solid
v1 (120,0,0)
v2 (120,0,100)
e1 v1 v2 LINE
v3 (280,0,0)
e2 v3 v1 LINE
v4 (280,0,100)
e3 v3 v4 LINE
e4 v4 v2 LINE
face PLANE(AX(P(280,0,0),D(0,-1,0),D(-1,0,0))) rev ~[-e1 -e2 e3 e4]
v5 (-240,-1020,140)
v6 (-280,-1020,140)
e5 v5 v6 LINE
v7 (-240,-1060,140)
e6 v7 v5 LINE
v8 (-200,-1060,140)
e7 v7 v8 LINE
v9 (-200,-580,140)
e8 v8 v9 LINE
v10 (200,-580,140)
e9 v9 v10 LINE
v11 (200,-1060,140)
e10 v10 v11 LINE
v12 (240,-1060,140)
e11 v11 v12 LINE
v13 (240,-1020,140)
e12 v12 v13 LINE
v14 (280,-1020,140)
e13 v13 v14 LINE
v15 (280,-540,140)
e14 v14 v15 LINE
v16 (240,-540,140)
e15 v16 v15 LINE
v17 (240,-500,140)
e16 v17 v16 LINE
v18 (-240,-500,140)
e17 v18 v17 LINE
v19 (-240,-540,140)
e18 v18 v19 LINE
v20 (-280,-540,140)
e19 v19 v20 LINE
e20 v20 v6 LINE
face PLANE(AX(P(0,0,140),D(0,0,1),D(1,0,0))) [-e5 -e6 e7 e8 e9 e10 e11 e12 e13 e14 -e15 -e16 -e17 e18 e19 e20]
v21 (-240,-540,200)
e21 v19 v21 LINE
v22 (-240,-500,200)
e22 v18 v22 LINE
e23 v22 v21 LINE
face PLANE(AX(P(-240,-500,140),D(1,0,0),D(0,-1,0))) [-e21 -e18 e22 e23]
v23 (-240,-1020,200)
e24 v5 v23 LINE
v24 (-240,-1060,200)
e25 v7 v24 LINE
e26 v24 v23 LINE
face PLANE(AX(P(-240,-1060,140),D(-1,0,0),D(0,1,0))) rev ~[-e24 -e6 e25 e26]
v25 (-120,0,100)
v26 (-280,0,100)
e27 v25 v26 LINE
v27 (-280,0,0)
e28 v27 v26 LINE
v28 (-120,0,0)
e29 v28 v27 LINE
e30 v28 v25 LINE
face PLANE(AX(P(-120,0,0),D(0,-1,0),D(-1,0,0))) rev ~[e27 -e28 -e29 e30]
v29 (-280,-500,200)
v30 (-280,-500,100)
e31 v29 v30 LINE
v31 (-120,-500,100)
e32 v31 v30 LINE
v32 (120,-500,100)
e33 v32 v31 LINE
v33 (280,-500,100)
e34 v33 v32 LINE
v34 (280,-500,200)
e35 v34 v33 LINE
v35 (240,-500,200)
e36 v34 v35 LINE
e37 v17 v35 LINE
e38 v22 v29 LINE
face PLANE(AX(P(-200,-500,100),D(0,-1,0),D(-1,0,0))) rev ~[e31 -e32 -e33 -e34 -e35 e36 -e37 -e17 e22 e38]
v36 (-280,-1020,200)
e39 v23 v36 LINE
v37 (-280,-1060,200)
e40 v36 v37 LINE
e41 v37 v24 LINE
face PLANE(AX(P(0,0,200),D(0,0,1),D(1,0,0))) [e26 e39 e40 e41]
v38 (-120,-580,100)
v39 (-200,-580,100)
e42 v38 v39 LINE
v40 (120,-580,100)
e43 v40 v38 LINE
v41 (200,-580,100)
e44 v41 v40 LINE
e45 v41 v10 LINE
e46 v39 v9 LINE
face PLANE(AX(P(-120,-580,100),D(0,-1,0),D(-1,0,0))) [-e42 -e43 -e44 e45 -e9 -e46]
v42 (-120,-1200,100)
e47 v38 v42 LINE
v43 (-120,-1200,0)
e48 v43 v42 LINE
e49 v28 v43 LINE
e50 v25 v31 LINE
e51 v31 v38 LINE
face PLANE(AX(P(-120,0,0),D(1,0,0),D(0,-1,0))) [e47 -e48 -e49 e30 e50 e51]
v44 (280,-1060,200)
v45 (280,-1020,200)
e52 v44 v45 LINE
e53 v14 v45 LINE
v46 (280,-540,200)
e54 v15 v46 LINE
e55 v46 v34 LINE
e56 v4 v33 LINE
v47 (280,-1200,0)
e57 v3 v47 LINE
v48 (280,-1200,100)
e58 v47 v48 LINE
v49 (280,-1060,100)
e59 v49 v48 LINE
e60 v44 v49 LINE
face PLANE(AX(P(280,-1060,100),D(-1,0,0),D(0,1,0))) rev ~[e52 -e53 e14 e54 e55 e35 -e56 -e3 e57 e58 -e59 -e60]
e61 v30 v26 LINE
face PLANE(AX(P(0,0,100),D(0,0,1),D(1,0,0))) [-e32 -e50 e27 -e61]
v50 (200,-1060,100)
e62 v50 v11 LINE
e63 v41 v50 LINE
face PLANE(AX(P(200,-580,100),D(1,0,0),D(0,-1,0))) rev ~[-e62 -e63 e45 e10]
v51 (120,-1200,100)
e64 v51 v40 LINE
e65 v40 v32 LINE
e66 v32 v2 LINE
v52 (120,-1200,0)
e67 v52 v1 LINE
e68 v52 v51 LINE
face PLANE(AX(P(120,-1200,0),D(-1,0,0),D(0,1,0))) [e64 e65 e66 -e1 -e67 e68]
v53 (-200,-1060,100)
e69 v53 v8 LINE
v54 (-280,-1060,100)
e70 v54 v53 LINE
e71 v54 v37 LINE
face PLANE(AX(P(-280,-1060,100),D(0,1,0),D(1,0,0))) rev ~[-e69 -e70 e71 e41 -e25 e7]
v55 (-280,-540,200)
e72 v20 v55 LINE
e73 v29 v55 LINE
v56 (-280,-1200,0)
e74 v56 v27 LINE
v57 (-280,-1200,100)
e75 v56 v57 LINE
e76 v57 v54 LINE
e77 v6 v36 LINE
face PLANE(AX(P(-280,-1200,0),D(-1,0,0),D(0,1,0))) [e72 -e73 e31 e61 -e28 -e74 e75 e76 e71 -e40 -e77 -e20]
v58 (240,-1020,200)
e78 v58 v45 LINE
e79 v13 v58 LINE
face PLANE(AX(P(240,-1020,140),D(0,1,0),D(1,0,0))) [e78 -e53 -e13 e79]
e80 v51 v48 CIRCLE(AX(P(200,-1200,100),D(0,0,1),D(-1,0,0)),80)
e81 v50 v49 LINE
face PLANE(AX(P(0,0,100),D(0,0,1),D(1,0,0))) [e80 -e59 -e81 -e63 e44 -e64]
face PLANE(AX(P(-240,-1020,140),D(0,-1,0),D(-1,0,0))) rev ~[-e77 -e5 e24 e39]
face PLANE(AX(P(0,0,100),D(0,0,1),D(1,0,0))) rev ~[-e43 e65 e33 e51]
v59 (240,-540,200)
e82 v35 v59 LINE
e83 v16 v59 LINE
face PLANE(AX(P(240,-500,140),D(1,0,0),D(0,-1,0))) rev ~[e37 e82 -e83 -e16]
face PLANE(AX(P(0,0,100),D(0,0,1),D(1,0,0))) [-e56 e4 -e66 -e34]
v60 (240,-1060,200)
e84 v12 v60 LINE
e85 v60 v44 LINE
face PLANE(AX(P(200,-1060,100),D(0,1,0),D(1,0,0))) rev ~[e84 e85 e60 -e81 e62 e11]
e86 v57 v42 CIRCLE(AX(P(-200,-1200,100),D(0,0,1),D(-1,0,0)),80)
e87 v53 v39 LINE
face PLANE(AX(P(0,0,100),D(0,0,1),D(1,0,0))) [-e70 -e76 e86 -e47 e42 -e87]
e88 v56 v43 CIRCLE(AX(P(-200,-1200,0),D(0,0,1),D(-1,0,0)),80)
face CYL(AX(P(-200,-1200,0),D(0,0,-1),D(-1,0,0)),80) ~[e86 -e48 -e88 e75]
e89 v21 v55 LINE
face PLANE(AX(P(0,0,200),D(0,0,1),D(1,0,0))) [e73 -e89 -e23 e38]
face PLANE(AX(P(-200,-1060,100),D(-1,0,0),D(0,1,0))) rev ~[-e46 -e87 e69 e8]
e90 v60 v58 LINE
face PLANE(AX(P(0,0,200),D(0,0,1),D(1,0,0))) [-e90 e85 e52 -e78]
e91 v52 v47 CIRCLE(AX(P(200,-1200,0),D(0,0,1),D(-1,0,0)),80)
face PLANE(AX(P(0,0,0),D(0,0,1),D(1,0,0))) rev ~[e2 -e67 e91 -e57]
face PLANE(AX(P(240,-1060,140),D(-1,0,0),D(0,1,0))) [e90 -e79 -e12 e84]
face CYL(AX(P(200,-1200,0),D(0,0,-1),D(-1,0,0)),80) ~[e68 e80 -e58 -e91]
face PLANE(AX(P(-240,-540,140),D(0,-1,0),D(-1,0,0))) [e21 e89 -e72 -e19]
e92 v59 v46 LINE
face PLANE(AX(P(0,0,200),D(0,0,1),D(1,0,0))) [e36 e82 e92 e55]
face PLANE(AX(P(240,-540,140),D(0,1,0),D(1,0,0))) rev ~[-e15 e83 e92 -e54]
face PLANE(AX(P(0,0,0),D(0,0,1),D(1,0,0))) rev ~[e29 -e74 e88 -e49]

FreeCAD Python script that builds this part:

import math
import FreeCAD as App
import Part
import Sketcher

doc = App.newDocument("Part")
body = doc.addObject("PartDesign::Body", "Body")
body.AllowCompound = True

# Sketch on XY plane
sketch1 = doc.addObject("Sketcher::SketchObject", "Sketch")
body.addObject(sketch1)
sketch1.AttachmentSupport = (doc.XY_Plane, [""])
sketch1.MapMode = "FlatFace"
sketch1.addGeometry(Part.LineSegment(App.Vector(-120, -1200, 0), App.Vector(-120, 0, 0)), False)
sketch1.addGeometry(Part.LineSegment(App.Vector(-120, 0, 0), App.Vector(-280, 0, 0)), False)
sketch1.addGeometry(Part.LineSegment(App.Vector(-280, 0, 0), App.Vector(-280, -1200, 0)), False)
sketch1.addGeometry(Part.ArcOfCircle(Part.Circle(App.Vector(-200, -1200, 0), App.Vector(0, 0, 1), 80), math.radians(180), math.radians(360)), False)
sketch1.addGeometry(Part.LineSegment(App.Vector(280, -1200, 0), App.Vector(280, 0, 0)), False)
sketch1.addGeometry(Part.LineSegment(App.Vector(280, 0, 0), App.Vector(120, 0, 0)), False)
sketch1.addGeometry(Part.LineSegment(App.Vector(120, 0, 0), App.Vector(120, -1200, 0)), False)
sketch1.addGeometry(Part.ArcOfCircle(Part.Circle(App.Vector(200, -1200, 0), App.Vector(0, 0, 1), 80), math.radians(180), math.radians(360)), False)
sketch1.addConstraint(Sketcher.Constraint("Coincident", 0, 2, 1, 1))
sketch1.addConstraint(Sketcher.Constraint("Coincident", 1, 2, 2, 1))
sketch1.addConstraint(Sketcher.Constraint("Tangent", 2, 2, 3, 1))
sketch1.addConstraint(Sketcher.Constraint("Tangent", 3, 2, 0, 1))
sketch1.addConstraint(Sketcher.Constraint("Coincident", 4, 2, 5, 1))
sketch1.addConstraint(Sketcher.Constraint("Coincident", 5, 2, 6, 1))
sketch1.addConstraint(Sketcher.Constraint("Tangent", 6, 2, 7, 1))
sketch1.addConstraint(Sketcher.Constraint("Tangent", 7, 2, 4, 1))
sketch1.addConstraint(Sketcher.Constraint("Vertical", 0))
sketch1.addConstraint(Sketcher.Constraint("Horizontal", 1))
sketch1.addConstraint(Sketcher.Constraint("Vertical", 2))
sketch1.addConstraint(Sketcher.Constraint("Vertical", 4))
sketch1.addConstraint(Sketcher.Constraint("Horizontal", 5))
sketch1.addConstraint(Sketcher.Constraint("Vertical", 6))
sketch1.addConstraint(Sketcher.Constraint("Equal", 3, 7))
sketch1.addConstraint(Sketcher.Constraint("Symmetric", 1, 2, 4, 2, -1, 1))
sketch1.addConstraint(Sketcher.Constraint("PointOnObject", 0, 2, -1))
sketch1.addConstraint(Sketcher.Constraint("Horizontal", 3, 3, 7, 3))
sketch1.addConstraint(Sketcher.Constraint("Radius", 3, 80.0))
sketch1.addConstraint(Sketcher.Constraint("DistanceY", 0, 1, 0, 2, 1200.0))
sketch1.addConstraint(Sketcher.Constraint("DistanceX", 1, 2, 4, 2, 560.0))
pad1 = doc.addObject("PartDesign::Pad", "Pad")
body.addObject(pad1)
pad1.Profile = sketch1
pad1.Length = 100

# Sketch on XY plane
sketch2 = doc.addObject("Sketcher::SketchObject", "Sketch001")
body.addObject(sketch2)
sketch2.AttachmentSupport = (doc.XY_Plane, [""])
sketch2.MapMode = "FlatFace"
sketch2.AttachmentOffset = App.Placement(App.Vector(0, 0, 100), App.Rotation())
sketch2.addGeometry(Part.LineSegment(App.Vector(-280, -500, 0), App.Vector(-280, -1060, 0)), False)
sketch2.addGeometry(Part.LineSegment(App.Vector(-280, -1060, 0), App.Vector(-200, -1060, 0)), False)
sketch2.addGeometry(Part.LineSegment(App.Vector(-200, -1060, 0), App.Vector(-200, -580, 0)), False)
sketch2.addGeometry(Part.LineSegment(App.Vector(-200, -580, 0), App.Vector(200, -580, 0)), False)
sketch2.addGeometry(Part.LineSegment(App.Vector(200, -580, 0), App.Vector(200, -1060, 0)), False)
sketch2.addGeometry(Part.LineSegment(App.Vector(200, -1060, 0), App.Vector(280, -1060, 0)), False)
sketch2.addGeometry(Part.LineSegment(App.Vector(280, -1060, 0), App.Vector(280, -500, 0)), False)
sketch2.addGeometry(Part.LineSegment(App.Vector(280, -500, 0), App.Vector(-280, -500, 0)), False)
sketch2.addConstraint(Sketcher.Constraint("Coincident", 0, 2, 1, 1))
sketch2.addConstraint(Sketcher.Constraint("Coincident", 1, 2, 2, 1))
sketch2.addConstraint(Sketcher.Constraint("Coincident", 2, 2, 3, 1))
sketch2.addConstraint(Sketcher.Constraint("Coincident", 3, 2, 4, 1))
sketch2.addConstraint(Sketcher.Constraint("Coincident", 4, 2, 5, 1))
sketch2.addConstraint(Sketcher.Constraint("Coincident", 5, 2, 6, 1))
sketch2.addConstraint(Sketcher.Constraint("Coincident", 6, 2, 7, 1))
sketch2.addConstraint(Sketcher.Constraint("Coincident", 7, 2, 0, 1))
sketch2.addConstraint(Sketcher.Constraint("Vertical", 0))
sketch2.addConstraint(Sketcher.Constraint("Horizontal", 1))
sketch2.addConstraint(Sketcher.Constraint("Vertical", 2))
sketch2.addConstraint(Sketcher.Constraint("Horizontal", 3))
sketch2.addConstraint(Sketcher.Constraint("Vertical", 4))
sketch2.addConstraint(Sketcher.Constraint("Horizontal", 5))
sketch2.addConstraint(Sketcher.Constraint("Vertical", 6))
sketch2.addConstraint(Sketcher.Constraint("Horizontal", 7))
sketch2.addConstraint(Sketcher.Constraint("Symmetric", 1, 2, 4, 2, -2))
sketch2.addConstraint(Sketcher.Constraint("Equal", 1, 5))
sketch2.addConstraint(Sketcher.Constraint("Equal", 7, 0))
sketch2.addConstraint(Sketcher.Constraint("DistanceX", 1, 1, 1, 2, 80.0))
sketch2.addConstraint(Sketcher.Constraint("DistanceX", 3, 1, 3, 2, 400.0))
sketch2.addConstraint(Sketcher.Constraint("DistanceY", 6, 2, -1, 1, 500.0))
sketch2.addConstraint(Sketcher.Constraint("DistanceY", 3, 2, 6, 2, 80.0))
pad2 = doc.addObject("PartDesign::Pad", "Pad001")
body.addObject(pad2)
pad2.Profile = sketch2
pad2.Length = 40

# Sketch on XY plane
sketch3 = doc.addObject("Sketcher::SketchObject", "Sketch002")
body.addObject(sketch3)
sketch3.AttachmentSupport = (doc.XY_Plane, [""])
sketch3.MapMode = "FlatFace"
sketch3.AttachmentOffset = App.Placement(App.Vector(0, 0, 140), App.Rotation())
sketch3.addGeometry(Part.LineSegment(App.Vector(-240, -500, 0), App.Vector(-280, -500, 0)), False)
sketch3.addGeometry(Part.LineSegment(App.Vector(-280, -500, 0), App.Vector(-280, -540, 0)), False)
sketch3.addGeometry(Part.LineSegment(App.Vector(-280, -540, 0), App.Vector(-240, -540, 0)), False)
sketch3.addGeometry(Part.LineSegment(App.Vector(-240, -540, 0), App.Vector(-240, -500, 0)), False)
sketch3.addGeometry(Part.LineSegment(App.Vector(-240, -1020, 0), App.Vector(-280, -1020, 0)), False)
sketch3.addGeometry(Part.LineSegment(App.Vector(-280, -1020, 0), App.Vector(-280, -1060, 0)), False)
sketch3.addGeometry(Part.LineSegment(App.Vector(-280, -1060, 0), App.Vector(-240, -1060, 0)), False)
sketch3.addGeometry(Part.LineSegment(App.Vector(-240, -1060, 0), App.Vector(-240, -1020, 0)), False)
sketch3.addGeometry(Part.LineSegment(App.Vector(280, -500, 0), App.Vector(240, -500, 0)), False)
sketch3.addGeometry(Part.LineSegment(App.Vector(240, -500, 0), App.Vector(240, -540, 0)), False)
sketch3.addGeometry(Part.LineSegment(App.Vector(240, -540, 0), App.Vector(280, -540, 0)), False)
sketch3.addGeometry(Part.LineSegment(App.Vector(280, -540, 0), App.Vector(280, -500, 0)), False)
sketch3.addGeometry(Part.LineSegment(App.Vector(280, -1060, 0), App.Vector(280, -1020, 0)), False)
sketch3.addGeometry(Part.LineSegment(App.Vector(280, -1020, 0), App.Vector(240, -1020, 0)), False)
sketch3.addGeometry(Part.LineSegment(App.Vector(240, -1020, 0), App.Vector(240, -1060, 0)), False)
sketch3.addGeometry(Part.LineSegment(App.Vector(240, -1060, 0), App.Vector(280, -1060, 0)), False)
sketch3.addConstraint(Sketcher.Constraint("Coincident", 0, 2, 1, 1))
sketch3.addConstraint(Sketcher.Constraint("Coincident", 1, 2, 2, 1))
sketch3.addConstraint(Sketcher.Constraint("Coincident", 2, 2, 3, 1))
sketch3.addConstraint(Sketcher.Constraint("Coincident", 3, 2, 0, 1))
sketch3.addConstraint(Sketcher.Constraint("Coincident", 4, 2, 5, 1))
sketch3.addConstraint(Sketcher.Constraint("Coincident", 5, 2, 6, 1))
sketch3.addConstraint(Sketcher.Constraint("Coincident", 6, 2, 7, 1))
sketch3.addConstraint(Sketcher.Constraint("Coincident", 7, 2, 4, 1))
sketch3.addConstraint(Sketcher.Constraint("Coincident", 8, 2, 9, 1))
sketch3.addConstraint(Sketcher.Constraint("Coincident", 9, 2, 10, 1))
sketch3.addConstraint(Sketcher.Constraint("Coincident", 10, 2, 11, 1))
sketch3.addConstraint(Sketcher.Constraint("Coincident", 11, 2, 8, 1))
sketch3.addConstraint(Sketcher.Constraint("Coincident", 12, 2, 13, 1))
sketch3.addConstraint(Sketcher.Constraint("Coincident", 13, 2, 14, 1))
sketch3.addConstraint(Sketcher.Constraint("Coincident", 14, 2, 15, 1))
sketch3.addConstraint(Sketcher.Constraint("Coincident", 15, 2, 12, 1))
sketch3.addConstraint(Sketcher.Constraint("Horizontal", 0))
sketch3.addConstraint(Sketcher.Constraint("Vertical", 1))
sketch3.addConstraint(Sketcher.Constraint("Horizontal", 2))
sketch3.addConstraint(Sketcher.Constraint("Vertical", 3))
sketch3.addConstraint(Sketcher.Constraint("Horizontal", 4))
sketch3.addConstraint(Sketcher.Constraint("Vertical", 5))
sketch3.addConstraint(Sketcher.Constraint("Horizontal", 6))
sketch3.addConstraint(Sketcher.Constraint("Vertical", 7))
sketch3.addConstraint(Sketcher.Constraint("Horizontal", 8))
sketch3.addConstraint(Sketcher.Constraint("Vertical", 9))
sketch3.addConstraint(Sketcher.Constraint("Horizontal", 10))
sketch3.addConstraint(Sketcher.Constraint("Vertical", 11))
sketch3.addConstraint(Sketcher.Constraint("Vertical", 12))
sketch3.addConstraint(Sketcher.Constraint("Horizontal", 13))
sketch3.addConstraint(Sketcher.Constraint("Vertical", 14))
sketch3.addConstraint(Sketcher.Constraint("Horizontal", 15))
sketch3.addConstraint(Sketcher.Constraint("Symmetric", 3, 2, 8, 2, -2))
sketch3.addConstraint(Sketcher.Constraint("Symmetric", 1, 2, 10, 2, -2))
sketch3.addConstraint(Sketcher.Constraint("Symmetric", 4, 2, 12, 2, -2))
sketch3.addConstraint(Sketcher.Constraint("Symmetric", 6, 2, 14, 2, -2))
sketch3.addConstraint(Sketcher.Constraint("Vertical", 1, 2, 4, 2))
sketch3.addConstraint(Sketcher.Constraint("Vertical", 3, 2, 6, 2))
sketch3.addConstraint(Sketcher.Constraint("Equal", 15, 1))
sketch3.addConstraint(Sketcher.Constraint("Equal", 3, 5))
sketch3.addConstraint(Sketcher.Constraint("DistanceX", 0, 2, 0, 1, 40.0))
sketch3.addConstraint(Sketcher.Constraint("DistanceX", 0, 2, -1, 1, 280.0))
sketch3.addConstraint(Sketcher.Constraint("DistanceY", 0, 2, -1, 1, 500.0))
sketch3.addConstraint(Sketcher.Constraint("DistanceY", 4, 2, -1, 1, 1020.0))
pad3 = doc.addObject("PartDesign::Pad", "Pad002")
body.addObject(pad3)
pad3.Profile = sketch3
pad3.Length = 60

doc.recompute()
